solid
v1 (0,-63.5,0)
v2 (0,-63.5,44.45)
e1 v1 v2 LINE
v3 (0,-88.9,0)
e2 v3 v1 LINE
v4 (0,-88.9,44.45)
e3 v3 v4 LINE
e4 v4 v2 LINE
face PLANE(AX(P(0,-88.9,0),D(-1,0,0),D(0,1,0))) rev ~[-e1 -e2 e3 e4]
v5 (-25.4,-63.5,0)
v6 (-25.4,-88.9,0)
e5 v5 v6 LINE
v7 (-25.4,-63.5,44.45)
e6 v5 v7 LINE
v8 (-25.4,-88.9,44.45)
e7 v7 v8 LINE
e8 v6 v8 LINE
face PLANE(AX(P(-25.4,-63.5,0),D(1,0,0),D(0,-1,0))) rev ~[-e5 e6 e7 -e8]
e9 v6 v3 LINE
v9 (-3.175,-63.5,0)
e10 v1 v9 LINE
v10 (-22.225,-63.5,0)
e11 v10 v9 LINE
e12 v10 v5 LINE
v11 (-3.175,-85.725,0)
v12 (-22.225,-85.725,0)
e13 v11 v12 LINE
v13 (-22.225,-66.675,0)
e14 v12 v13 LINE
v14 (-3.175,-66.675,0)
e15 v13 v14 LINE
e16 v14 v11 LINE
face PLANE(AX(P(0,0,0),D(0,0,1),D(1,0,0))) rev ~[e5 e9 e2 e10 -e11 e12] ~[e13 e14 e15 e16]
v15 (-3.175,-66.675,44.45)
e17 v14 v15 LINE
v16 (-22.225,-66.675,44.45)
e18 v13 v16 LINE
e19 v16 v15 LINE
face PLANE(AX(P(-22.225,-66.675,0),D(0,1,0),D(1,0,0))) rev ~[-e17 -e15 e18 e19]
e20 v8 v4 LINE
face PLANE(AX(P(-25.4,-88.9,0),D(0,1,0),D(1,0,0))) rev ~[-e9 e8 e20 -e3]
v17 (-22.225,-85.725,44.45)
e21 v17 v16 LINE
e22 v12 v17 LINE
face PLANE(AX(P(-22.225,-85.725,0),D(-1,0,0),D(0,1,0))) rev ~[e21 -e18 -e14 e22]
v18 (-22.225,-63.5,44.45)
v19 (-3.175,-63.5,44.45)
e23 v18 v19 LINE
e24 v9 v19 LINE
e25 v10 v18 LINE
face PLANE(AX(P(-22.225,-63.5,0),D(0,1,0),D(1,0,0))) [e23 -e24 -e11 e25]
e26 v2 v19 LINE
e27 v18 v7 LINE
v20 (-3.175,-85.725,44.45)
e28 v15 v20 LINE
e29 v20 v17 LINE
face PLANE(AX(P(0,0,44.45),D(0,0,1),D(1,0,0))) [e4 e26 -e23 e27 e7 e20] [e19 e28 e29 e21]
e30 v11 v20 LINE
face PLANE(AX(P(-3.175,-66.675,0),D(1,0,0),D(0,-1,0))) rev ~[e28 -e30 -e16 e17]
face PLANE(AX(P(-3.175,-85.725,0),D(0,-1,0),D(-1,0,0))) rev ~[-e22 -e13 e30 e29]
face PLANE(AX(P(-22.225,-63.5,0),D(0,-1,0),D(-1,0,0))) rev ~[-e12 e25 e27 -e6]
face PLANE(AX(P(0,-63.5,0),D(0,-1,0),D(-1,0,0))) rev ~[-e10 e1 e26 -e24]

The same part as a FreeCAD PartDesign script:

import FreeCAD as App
import Part
import Sketcher
Q = App.Units.Quantity


def add_polygon(sketch, points):
    """Adds a closed chain of lines whose ends are joined by coincident constraints."""
    first, n = sketch.GeometryCount, len(points)
    for a, b in zip(points, points[1:] + points[:1]):
        sketch.addGeometry(Part.LineSegment(App.Vector(*a, 0), App.Vector(*b, 0)), False)
    for i in range(n):
        sketch.addConstraint(Sketcher.Constraint("Coincident", first + i, 2, first + (i + 1) % n, 1))

doc = App.newDocument("Part")
params = doc.addObject("Spreadsheet::Sheet", "Params")
for row, (alias, value) in enumerate([
    ("sketch1_width", "1 in"),
    ("pad1_length", "1.75 in"),
], start=1):
    params.set(f"A{row}", alias)
    params.set(f"B{row}", "=" + value)
    params.setAlias(f"B{row}", alias)

body = doc.addObject("PartDesign::Body", "Body")

# Sketch on XY plane
sketch1 = doc.addObject("Sketcher::SketchObject", "Sketch")
body.addObject(sketch1)
sketch1.AttachmentSupport = (doc.XY_Plane, [""])
sketch1.MapMode = "FlatFace"
add_polygon(sketch1, [(0, -64), (-25, -64), (-25, -89), (0, -89)])  # lines 0-3
add_polygon(sketch1, [(-3, -86), (-22, -86), (-22, -67), (-3, -67)])  # lines 4-7
sketch1.addConstraint([
    Sketcher.Constraint("Horizontal", 0),
    Sketcher.Constraint("Vertical", 1),
    Sketcher.Constraint("Horizontal", 2),
    Sketcher.Constraint("Vertical", 3),
    Sketcher.Constraint("Horizontal", 4),
    Sketcher.Constraint("Vertical", 5),
    Sketcher.Constraint("Horizontal", 6),
    Sketcher.Constraint("Vertical", 7),
    Sketcher.Constraint("PointOnObject", 2, 2, -2),
    Sketcher.Constraint("Equal", 2, 1),
    Sketcher.Constraint("Equal", 6, 5),
    Sketcher.Constraint("DistanceX", 0, 2, 0, 1, Q("1 in")),
    Sketcher.Constraint("DistanceX", 6, 2, -1, 1, Q("0.125 in")),
    Sketcher.Constraint("DistanceX", 1, 2, 4, 2, Q("0.125 in")),
    Sketcher.Constraint("DistanceY", 1, 2, 4, 2, Q("0.125 in")),
    Sketcher.Constraint("DistanceY", 0, 2, -1, 1, Q("2.5 in")),
])
sketch1.setExpression("Constraints[19]", "Params.sketch1_width")
pad1 = doc.addObject("PartDesign::Pad", "Pad")
body.addObject(pad1)
pad1.Profile = sketch1
pad1.setExpression("Length", "Params.pad1_length")

doc.recompute()
